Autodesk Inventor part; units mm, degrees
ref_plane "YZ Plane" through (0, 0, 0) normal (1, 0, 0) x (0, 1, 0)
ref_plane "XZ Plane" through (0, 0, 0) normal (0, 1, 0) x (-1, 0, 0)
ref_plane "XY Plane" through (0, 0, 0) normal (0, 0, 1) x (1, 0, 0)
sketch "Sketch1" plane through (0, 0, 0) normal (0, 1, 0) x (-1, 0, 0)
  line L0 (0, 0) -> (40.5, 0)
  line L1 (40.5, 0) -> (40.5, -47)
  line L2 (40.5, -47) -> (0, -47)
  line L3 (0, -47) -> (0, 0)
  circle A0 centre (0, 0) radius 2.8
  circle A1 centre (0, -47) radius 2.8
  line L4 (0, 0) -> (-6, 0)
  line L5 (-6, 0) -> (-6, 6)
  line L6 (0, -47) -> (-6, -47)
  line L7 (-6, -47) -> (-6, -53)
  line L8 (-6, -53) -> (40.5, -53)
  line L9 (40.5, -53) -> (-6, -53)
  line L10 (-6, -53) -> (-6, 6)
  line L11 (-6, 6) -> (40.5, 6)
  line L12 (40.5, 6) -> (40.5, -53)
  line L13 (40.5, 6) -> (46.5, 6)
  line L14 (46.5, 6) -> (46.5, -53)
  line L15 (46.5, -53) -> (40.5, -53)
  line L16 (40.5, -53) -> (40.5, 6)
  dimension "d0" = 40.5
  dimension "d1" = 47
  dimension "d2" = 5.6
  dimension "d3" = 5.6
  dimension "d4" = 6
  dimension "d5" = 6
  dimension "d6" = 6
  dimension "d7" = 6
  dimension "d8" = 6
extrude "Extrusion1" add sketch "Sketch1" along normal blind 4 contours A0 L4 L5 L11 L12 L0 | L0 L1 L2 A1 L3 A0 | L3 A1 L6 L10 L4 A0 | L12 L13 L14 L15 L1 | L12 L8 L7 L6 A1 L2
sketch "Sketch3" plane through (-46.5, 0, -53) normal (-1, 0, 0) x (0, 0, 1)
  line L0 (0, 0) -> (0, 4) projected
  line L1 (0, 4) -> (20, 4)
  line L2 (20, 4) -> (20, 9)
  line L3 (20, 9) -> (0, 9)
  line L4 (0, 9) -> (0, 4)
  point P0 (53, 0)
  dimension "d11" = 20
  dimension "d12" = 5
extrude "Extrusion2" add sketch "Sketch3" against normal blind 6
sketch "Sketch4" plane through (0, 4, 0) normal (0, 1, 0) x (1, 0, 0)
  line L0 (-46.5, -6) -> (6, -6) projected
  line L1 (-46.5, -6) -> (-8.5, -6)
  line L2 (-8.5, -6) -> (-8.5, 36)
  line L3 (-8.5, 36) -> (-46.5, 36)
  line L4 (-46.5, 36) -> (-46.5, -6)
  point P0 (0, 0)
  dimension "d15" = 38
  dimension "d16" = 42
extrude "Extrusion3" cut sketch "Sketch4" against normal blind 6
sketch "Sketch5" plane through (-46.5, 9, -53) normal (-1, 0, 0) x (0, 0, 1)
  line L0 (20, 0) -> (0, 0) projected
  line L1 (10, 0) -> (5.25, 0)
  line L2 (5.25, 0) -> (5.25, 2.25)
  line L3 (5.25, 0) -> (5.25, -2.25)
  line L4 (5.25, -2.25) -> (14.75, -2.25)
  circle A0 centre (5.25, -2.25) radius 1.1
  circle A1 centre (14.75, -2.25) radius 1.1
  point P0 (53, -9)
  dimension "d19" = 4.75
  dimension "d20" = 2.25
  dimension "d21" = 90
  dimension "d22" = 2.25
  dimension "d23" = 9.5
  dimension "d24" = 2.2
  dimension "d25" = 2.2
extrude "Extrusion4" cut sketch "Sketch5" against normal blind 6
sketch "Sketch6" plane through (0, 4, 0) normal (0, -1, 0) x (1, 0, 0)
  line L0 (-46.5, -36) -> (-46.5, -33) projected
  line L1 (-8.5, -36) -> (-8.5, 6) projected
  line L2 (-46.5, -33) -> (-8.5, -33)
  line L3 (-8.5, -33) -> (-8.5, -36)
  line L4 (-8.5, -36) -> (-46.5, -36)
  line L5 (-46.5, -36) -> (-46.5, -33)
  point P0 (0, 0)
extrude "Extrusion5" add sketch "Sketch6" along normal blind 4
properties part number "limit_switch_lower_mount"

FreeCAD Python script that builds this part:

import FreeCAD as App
import Part
import Sketcher
Q = App.Units.Quantity

doc = App.newDocument("Part")
params = doc.addObject("Spreadsheet::Sheet", "Params")
for row, (alias, value) in enumerate([
    ("sketch1_diameter", "5.6 mm"),
    ("sketch1_width", "52.5 mm"),
    ("pad1_length", "4 mm"),
    ("sketch2_width", "5 mm"),
    ("sketch2_height", "20 mm"),
    ("pad2_length", "6 mm"),
    ("sketch3_width", "38 mm"),
    ("sketch3_height", "42 mm"),
    ("pocket1_length", "6 mm"),
    ("sketch4_diameter", "2.2 mm"),
    ("pocket2_length", "6 mm"),
    ("sketch5_width", "38 mm"),
    ("sketch5_height", "3 mm"),
    ("pad3_length", "4 mm"),
], start=1):
    params.set(f"A{row}", alias)
    params.set(f"B{row}", "=" + value)
    params.setAlias(f"B{row}", alias)

body = doc.addObject("PartDesign::Body", "Body")

# Sketch on XZ plane
sketch1 = body.newObject("Sketcher::SketchObject", "Sketch")
sketch1.AttachmentSupport = (doc.getObject("XZ_Plane"), [""])
sketch1.MapMode = "FlatFace"
sketch1.addGeometry(Part.LineSegment(App.Vector(6, 6, 0), App.Vector(6, -53, 0)), False)
sketch1.addGeometry(Part.LineSegment(App.Vector(6, -53, 0), App.Vector(-46.5, -53, 0)), False)
sketch1.addGeometry(Part.LineSegment(App.Vector(-46.5, -53, 0), App.Vector(-46.5, 6, 0)), False)
sketch1.addGeometry(Part.LineSegment(App.Vector(-46.5, 6, 0), App.Vector(6, 6, 0)), False)
sketch1.addGeometry(Part.Circle(App.Vector(0, 0, 0), App.Vector(0, 0, 1), 2.8), False)
sketch1.addGeometry(Part.Circle(App.Vector(0, -47, 0), App.Vector(0, 0, 1), 2.8), False)
sketch1.addConstraint(Sketcher.Constraint("Coincident", 0, 2, 1, 1))
sketch1.addConstraint(Sketcher.Constraint("Coincident", 1, 2, 2, 1))
sketch1.addConstraint(Sketcher.Constraint("Coincident", 2, 2, 3, 1))
sketch1.addConstraint(Sketcher.Constraint("Coincident", 3, 2, 0, 1))
sketch1.addConstraint(Sketcher.Constraint("Vertical", 0))
sketch1.addConstraint(Sketcher.Constraint("Horizontal", 1))
sketch1.addConstraint(Sketcher.Constraint("Vertical", 2))
sketch1.addConstraint(Sketcher.Constraint("Horizontal", 3))
sketch1.addConstraint(Sketcher.Constraint("Coincident", 4, 3, -1, 1))
sketch1.addConstraint(Sketcher.Constraint("Equal", 4, 5))
sketch1.addConstraint(Sketcher.Constraint("PointOnObject", 5, 3, -2))
sketch1.addConstraint(Sketcher.Constraint("Diameter", 4, Q("5.6 mm")))
sketch1.addConstraint(Sketcher.Constraint("DistanceY", 5, 3, -1, 1, Q("47 mm")))
sketch1.addConstraint(Sketcher.Constraint("DistanceX", -1, 1, 0, 2, Q("6 mm")))
sketch1.addConstraint(Sketcher.Constraint("DistanceY", -1, 1, 2, 2, Q("6 mm")))
sketch1.addConstraint(Sketcher.Constraint("DistanceY", 0, 2, 5, 3, Q("6 mm")))
sketch1.addConstraint(Sketcher.Constraint("DistanceX", 1, 2, 1, 1, Q("52.5 mm")))
sketch1.setExpression("Constraints[11]", "Params.sketch1_diameter")
sketch1.setExpression("Constraints[16]", "Params.sketch1_width")
pad1 = body.newObject("PartDesign::Pad", "Pad")
pad1.Profile = sketch1
pad1.setExpression("Length", "Params.pad1_length")
pad1.Reversed = True

# Sketch on YZ plane
sketch2 = body.newObject("Sketcher::SketchObject", "Sketch001")
sketch2.AttachmentSupport = (doc.getObject("YZ_Plane"), [""])
sketch2.MapMode = "FlatFace"
sketch2.AttachmentOffset = App.Placement(App.Vector(0, 0, -46.5), App.Rotation())
sketch2.addGeometry(Part.LineSegment(App.Vector(9, -53, 0), App.Vector(4, -53, 0)), False)
sketch2.addGeometry(Part.LineSegment(App.Vector(4, -53, 0), App.Vector(4, -33, 0)), False)
sketch2.addGeometry(Part.LineSegment(App.Vector(4, -33, 0), App.Vector(9, -33, 0)), False)
sketch2.addGeometry(Part.LineSegment(App.Vector(9, -33, 0), App.Vector(9, -53, 0)), False)
sketch2.addConstraint(Sketcher.Constraint("Coincident", 0, 2, 1, 1))
sketch2.addConstraint(Sketcher.Constraint("Coincident", 1, 2, 2, 1))
sketch2.addConstraint(Sketcher.Constraint("Coincident", 2, 2, 3, 1))
sketch2.addConstraint(Sketcher.Constraint("Coincident", 3, 2, 0, 1))
sketch2.addConstraint(Sketcher.Constraint("Horizontal", 0))
sketch2.addConstraint(Sketcher.Constraint("Vertical", 1))
sketch2.addConstraint(Sketcher.Constraint("Horizontal", 2))
sketch2.addConstraint(Sketcher.Constraint("Vertical", 3))
sketch2.addConstraint(Sketcher.Constraint("DistanceX", 0, 2, 0, 1, Q("5 mm")))
sketch2.addConstraint(Sketcher.Constraint("DistanceY", 1, 1, 1, 2, Q("20 mm")))
sketch2.addConstraint(Sketcher.Constraint("DistanceX", -1, 1, 0, 2, Q("4 mm")))
sketch2.addConstraint(Sketcher.Constraint("DistanceY", 0, 2, -1, 1, Q("53 mm")))
sketch2.setExpression("Constraints[8]", "Params.sketch2_width")
sketch2.setExpression("Constraints[9]", "Params.sketch2_height")
pad2 = body.newObject("PartDesign::Pad", "Pad001")
pad2.Profile = sketch2
pad2.setExpression("Length", "Params.pad2_length")

# Sketch on XZ plane
sketch3 = body.newObject("Sketcher::SketchObject", "Sketch002")
sketch3.AttachmentSupport = (doc.getObject("XZ_Plane"), [""])
sketch3.MapMode = "FlatFace"
sketch3.AttachmentOffset = App.Placement(App.Vector(0, 0, -4), App.Rotation())
sketch3.addGeometry(Part.LineSegment(App.Vector(-46, -36, 0), App.Vector(-46, 6, 0)), False)
sketch3.addGeometry(Part.LineSegment(App.Vector(-46, 6, 0), App.Vector(-8, 6, 0)), False)
sketch3.addGeometry(Part.LineSegment(App.Vector(-8, 6, 0), App.Vector(-8, -36, 0)), False)
sketch3.addGeometry(Part.LineSegment(App.Vector(-8, -36, 0), App.Vector(-46, -36, 0)), False)
sketch3.addConstraint(Sketcher.Constraint("Coincident", 0, 2, 1, 1))
sketch3.addConstraint(Sketcher.Constraint("Coincident", 1, 2, 2, 1))
sketch3.addConstraint(Sketcher.Constraint("Coincident", 2, 2, 3, 1))
sketch3.addConstraint(Sketcher.Constraint("Coincident", 3, 2, 0, 1))
sketch3.addConstraint(Sketcher.Constraint("Vertical", 0))
sketch3.addConstraint(Sketcher.Constraint("Horizontal", 1))
sketch3.addConstraint(Sketcher.Constraint("Vertical", 2))
sketch3.addConstraint(Sketcher.Constraint("Horizontal", 3))
sketch3.addConstraint(Sketcher.Constraint("DistanceX", 1, 1, 1, 2, Q("38 mm")))
sketch3.addConstraint(Sketcher.Constraint("DistanceY", 0, 1, 0, 2, Q("42 mm")))
sketch3.addConstraint(Sketcher.Constraint("DistanceY", -1, 1, 0, 2, Q("6 mm")))
sketch3.addConstraint(Sketcher.Constraint("DistanceX", 0, 2, -1, 1, Q("46.5 mm")))
sketch3.setExpression("Constraints[8]", "Params.sketch3_width")
sketch3.setExpression("Constraints[9]", "Params.sketch3_height")
pocket1 = body.newObject("PartDesign::Pocket", "Pocket")
pocket1.Profile = sketch3
pocket1.setExpression("Length", "Params.pocket1_length")
pocket1.Reversed = True

# Sketch on YZ plane
sketch4 = body.newObject("Sketcher::SketchObject", "Sketch003")
sketch4.AttachmentSupport = (doc.getObject("YZ_Plane"), [""])
sketch4.MapMode = "FlatFace"
sketch4.AttachmentOffset = App.Placement(App.Vector(0, 0, -46.5), App.Rotation())
sketch4.addGeometry(Part.Circle(App.Vector(6.8, -47.8, 0), App.Vector(0, 0, 1), 1.1), False)
sketch4.addGeometry(Part.Circle(App.Vector(6.8, -38.2, 0), App.Vector(0, 0, 1), 1.1), False)
sketch4.addConstraint(Sketcher.Constraint("Equal", 0, 1))
sketch4.addConstraint(Sketcher.Constraint("Vertical", 0, 3, 1, 3))
sketch4.addConstraint(Sketcher.Constraint("Diameter", 0, Q("2.2 mm")))
sketch4.addConstraint(Sketcher.Constraint("DistanceY", 0, 3, 1, 3, Q("9.5 mm")))
sketch4.addConstraint(Sketcher.Constraint("DistanceX", -1, 1, 0, 3, Q("6.75 mm")))
sketch4.addConstraint(Sketcher.Constraint("DistanceY", 0, 3, -1, 1, Q("47.75 mm")))
sketch4.setExpression("Constraints[2]", "Params.sketch4_diameter")
pocket2 = body.newObject("PartDesign::Pocket", "Pocket001")
pocket2.Profile = sketch4
pocket2.setExpression("Length", "Params.pocket2_length")
pocket2.Reversed = True

# Sketch on XZ plane
sketch5 = body.newObject("Sketcher::SketchObject", "Sketch004")
sketch5.AttachmentSupport = (doc.getObject("XZ_Plane"), [""])
sketch5.MapMode = "FlatFace"
sketch5.AttachmentOffset = App.Placement(App.Vector(0, 0, -4), App.Rotation())
sketch5.addGeometry(Part.LineSegment(App.Vector(-46.5, -33, 0), App.Vector(-46.5, -36, 0)), False)
sketch5.addGeometry(Part.LineSegment(App.Vector(-46.5, -36, 0), App.Vector(-8.5, -36, 0)), False)
sketch5.addGeometry(Part.LineSegment(App.Vector(-8.5, -36, 0), App.Vector(-8.5, -33, 0)), False)
sketch5.addGeometry(Part.LineSegment(App.Vector(-8.5, -33, 0), App.Vector(-46.5, -33, 0)), False)
sketch5.addConstraint(Sketcher.Constraint("Coincident", 0, 2, 1, 1))
sketch5.addConstraint(Sketcher.Constraint("Coincident", 1, 2, 2, 1))
sketch5.addConstraint(Sketcher.Constraint("Coincident", 2, 2, 3, 1))
sketch5.addConstraint(Sketcher.Constraint("Coincident", 3, 2, 0, 1))
sketch5.addConstraint(Sketcher.Constraint("Vertical", 0))
sketch5.addConstraint(Sketcher.Constraint("Horizontal", 1))
sketch5.addConstraint(Sketcher.Constraint("Vertical", 2))
sketch5.addConstraint(Sketcher.Constraint("Horizontal", 3))
sketch5.addConstraint(Sketcher.Constraint("DistanceX", 1, 1, 1, 2, Q("38 mm")))
sketch5.addConstraint(Sketcher.Constraint("DistanceY", 0, 2, 0, 1, Q("3 mm")))
sketch5.addConstraint(Sketcher.Constraint("DistanceY", 0, 2, -1, 1, Q("36 mm")))
sketch5.addConstraint(Sketcher.Constraint("DistanceX", 0, 2, -1, 1, Q("46.5 mm")))
sketch5.setExpression("Constraints[8]", "Params.sketch5_width")
sketch5.setExpression("Constraints[9]", "Params.sketch5_height")
pad3 = body.newObject("PartDesign::Pad", "Pad002")
pad3.Profile = sketch5
pad3.setExpression("Length", "Params.pad3_length")

doc.recompute()
